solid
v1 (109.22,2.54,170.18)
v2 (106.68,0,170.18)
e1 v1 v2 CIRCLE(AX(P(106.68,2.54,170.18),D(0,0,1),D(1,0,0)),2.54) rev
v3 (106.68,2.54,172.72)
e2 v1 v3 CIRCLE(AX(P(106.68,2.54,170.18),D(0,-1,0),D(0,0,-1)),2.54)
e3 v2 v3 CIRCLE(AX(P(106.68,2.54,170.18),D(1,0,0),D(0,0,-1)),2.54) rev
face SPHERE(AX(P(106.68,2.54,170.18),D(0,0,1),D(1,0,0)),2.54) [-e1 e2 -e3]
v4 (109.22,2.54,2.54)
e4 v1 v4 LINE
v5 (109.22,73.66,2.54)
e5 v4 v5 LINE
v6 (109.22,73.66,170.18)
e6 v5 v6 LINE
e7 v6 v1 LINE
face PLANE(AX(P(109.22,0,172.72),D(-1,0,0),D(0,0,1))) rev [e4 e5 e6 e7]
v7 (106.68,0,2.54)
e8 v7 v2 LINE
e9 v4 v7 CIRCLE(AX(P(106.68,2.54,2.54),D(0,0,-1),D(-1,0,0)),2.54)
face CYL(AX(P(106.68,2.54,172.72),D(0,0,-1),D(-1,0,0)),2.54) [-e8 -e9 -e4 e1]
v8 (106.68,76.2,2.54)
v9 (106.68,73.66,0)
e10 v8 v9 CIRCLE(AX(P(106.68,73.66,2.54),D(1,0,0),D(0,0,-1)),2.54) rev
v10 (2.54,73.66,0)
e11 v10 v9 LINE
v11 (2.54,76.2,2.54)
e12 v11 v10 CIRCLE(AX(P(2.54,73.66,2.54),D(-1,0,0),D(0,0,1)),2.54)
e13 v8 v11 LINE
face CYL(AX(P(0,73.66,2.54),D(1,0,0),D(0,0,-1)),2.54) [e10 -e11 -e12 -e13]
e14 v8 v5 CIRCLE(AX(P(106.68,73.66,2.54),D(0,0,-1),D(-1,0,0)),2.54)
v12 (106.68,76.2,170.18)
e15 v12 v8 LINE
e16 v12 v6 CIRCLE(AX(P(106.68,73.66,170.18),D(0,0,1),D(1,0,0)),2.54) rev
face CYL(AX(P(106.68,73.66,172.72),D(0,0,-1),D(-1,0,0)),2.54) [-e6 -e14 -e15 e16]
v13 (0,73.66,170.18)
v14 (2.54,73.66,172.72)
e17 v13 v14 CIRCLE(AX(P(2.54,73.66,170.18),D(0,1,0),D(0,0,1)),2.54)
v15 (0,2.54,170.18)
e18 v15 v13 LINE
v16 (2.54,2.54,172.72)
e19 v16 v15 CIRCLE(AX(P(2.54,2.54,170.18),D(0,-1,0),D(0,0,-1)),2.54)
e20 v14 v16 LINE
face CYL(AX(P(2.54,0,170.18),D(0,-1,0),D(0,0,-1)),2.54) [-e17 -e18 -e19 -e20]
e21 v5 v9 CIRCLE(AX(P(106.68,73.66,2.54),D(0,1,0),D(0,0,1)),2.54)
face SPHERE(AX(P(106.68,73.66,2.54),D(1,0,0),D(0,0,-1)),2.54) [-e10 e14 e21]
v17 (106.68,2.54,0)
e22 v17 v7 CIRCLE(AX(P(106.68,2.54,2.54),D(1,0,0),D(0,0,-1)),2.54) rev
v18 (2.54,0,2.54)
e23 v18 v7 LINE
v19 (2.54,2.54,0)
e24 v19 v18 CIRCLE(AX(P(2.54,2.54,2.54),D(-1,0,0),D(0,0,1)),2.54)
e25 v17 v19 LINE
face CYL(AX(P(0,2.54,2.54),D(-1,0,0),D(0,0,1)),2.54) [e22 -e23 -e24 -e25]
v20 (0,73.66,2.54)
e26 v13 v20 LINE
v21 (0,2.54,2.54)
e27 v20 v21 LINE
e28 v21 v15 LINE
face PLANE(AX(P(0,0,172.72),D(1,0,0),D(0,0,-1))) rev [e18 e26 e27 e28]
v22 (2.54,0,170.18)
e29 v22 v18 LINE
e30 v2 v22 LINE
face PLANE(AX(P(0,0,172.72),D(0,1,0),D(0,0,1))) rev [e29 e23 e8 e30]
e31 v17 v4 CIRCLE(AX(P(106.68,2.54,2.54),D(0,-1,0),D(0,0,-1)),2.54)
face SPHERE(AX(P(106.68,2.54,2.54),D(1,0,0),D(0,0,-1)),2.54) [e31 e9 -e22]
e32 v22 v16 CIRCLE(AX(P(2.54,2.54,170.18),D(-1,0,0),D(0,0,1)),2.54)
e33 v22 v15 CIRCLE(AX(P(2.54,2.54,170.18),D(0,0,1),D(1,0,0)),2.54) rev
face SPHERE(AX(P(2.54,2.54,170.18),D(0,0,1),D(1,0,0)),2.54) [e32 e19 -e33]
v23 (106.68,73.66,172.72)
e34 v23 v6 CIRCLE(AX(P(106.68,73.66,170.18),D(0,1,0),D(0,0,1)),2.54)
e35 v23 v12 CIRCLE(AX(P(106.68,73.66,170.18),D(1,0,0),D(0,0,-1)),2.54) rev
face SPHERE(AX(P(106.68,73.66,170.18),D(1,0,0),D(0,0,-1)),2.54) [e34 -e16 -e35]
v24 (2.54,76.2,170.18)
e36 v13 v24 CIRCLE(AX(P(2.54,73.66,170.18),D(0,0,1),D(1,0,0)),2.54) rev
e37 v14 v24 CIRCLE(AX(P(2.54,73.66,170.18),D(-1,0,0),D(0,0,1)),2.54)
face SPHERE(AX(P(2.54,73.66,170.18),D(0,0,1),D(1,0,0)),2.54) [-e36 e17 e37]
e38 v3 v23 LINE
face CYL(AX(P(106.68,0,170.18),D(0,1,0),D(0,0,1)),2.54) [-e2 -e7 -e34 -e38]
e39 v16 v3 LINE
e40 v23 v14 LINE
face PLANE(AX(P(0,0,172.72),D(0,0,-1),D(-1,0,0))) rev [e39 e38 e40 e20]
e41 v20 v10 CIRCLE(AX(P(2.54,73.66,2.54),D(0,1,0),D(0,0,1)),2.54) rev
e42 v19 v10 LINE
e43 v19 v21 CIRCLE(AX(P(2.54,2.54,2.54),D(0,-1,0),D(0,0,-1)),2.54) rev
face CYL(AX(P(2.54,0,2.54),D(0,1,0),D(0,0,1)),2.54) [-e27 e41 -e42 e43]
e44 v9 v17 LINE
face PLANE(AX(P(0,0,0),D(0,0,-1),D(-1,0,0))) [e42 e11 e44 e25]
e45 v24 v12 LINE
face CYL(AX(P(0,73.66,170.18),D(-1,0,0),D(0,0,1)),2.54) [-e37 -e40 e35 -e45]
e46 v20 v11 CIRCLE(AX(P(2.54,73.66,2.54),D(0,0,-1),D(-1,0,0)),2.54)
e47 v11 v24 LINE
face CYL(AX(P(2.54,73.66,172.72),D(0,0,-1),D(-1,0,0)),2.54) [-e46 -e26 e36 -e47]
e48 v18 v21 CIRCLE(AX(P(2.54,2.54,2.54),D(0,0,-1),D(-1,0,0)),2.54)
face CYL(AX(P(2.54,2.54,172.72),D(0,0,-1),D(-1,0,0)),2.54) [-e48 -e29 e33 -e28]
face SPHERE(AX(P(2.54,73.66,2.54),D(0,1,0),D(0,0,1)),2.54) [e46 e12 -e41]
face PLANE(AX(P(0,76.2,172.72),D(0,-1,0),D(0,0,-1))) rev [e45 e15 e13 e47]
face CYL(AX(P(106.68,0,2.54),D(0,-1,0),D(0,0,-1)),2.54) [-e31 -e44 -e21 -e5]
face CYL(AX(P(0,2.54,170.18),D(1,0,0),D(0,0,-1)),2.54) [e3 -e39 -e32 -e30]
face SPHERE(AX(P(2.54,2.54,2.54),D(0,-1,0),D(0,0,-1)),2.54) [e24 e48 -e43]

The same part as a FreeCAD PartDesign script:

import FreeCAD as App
import Part
import Sketcher
Q = App.Units.Quantity


def add_polygon(sketch, points):
    """Adds a closed chain of lines whose ends are joined by coincident constraints."""
    first, n = sketch.GeometryCount, len(points)
    for a, b in zip(points, points[1:] + points[:1]):
        sketch.addGeometry(Part.LineSegment(App.Vector(*a, 0), App.Vector(*b, 0)), False)
    for i in range(n):
        sketch.addConstraint(Sketcher.Constraint("Coincident", first + i, 2, first + (i + 1) % n, 1))

doc = App.newDocument("Part")
body = doc.addObject("PartDesign::Body", "Body")

sketch1 = body.newObject("Sketcher::SketchObject", "Sketch")
sketch1.AttachmentSupport = (doc.getObject("XY_Plane"), [""])
sketch1.MapMode = "FlatFace"
add_polygon(sketch1, [(0, 76.2), (0, 0), (109.22, 0), (109.22, 76.2)])
sketch1.addConstraint(Sketcher.Constraint("Vertical", 0))
sketch1.addConstraint(Sketcher.Constraint("Horizontal", 1))
sketch1.addConstraint(Sketcher.Constraint("Vertical", 2))
sketch1.addConstraint(Sketcher.Constraint("Horizontal", 3))
sketch1.addConstraint(Sketcher.Constraint("Coincident", 0, 2, -1, 1))
sketch1.addConstraint(Sketcher.Constraint("DistanceY", 0, 2, 0, 1, Q("3 in")))
sketch1.addConstraint(Sketcher.Constraint("DistanceX", 1, 1, 1, 2, Q("4.3 in")))
pad1 = body.newObject("PartDesign::Pad", "Pad")
pad1.Profile = sketch1
pad1.Length = Q("6.8 in")
doc.recompute()

fillet = body.newObject("PartDesign::Fillet", "Fillet")
fillet.Base = (pad1, ["Edge1"])
fillet.UseAllEdges = True
fillet.Radius = Q("0.1 in")

doc.recompute()
